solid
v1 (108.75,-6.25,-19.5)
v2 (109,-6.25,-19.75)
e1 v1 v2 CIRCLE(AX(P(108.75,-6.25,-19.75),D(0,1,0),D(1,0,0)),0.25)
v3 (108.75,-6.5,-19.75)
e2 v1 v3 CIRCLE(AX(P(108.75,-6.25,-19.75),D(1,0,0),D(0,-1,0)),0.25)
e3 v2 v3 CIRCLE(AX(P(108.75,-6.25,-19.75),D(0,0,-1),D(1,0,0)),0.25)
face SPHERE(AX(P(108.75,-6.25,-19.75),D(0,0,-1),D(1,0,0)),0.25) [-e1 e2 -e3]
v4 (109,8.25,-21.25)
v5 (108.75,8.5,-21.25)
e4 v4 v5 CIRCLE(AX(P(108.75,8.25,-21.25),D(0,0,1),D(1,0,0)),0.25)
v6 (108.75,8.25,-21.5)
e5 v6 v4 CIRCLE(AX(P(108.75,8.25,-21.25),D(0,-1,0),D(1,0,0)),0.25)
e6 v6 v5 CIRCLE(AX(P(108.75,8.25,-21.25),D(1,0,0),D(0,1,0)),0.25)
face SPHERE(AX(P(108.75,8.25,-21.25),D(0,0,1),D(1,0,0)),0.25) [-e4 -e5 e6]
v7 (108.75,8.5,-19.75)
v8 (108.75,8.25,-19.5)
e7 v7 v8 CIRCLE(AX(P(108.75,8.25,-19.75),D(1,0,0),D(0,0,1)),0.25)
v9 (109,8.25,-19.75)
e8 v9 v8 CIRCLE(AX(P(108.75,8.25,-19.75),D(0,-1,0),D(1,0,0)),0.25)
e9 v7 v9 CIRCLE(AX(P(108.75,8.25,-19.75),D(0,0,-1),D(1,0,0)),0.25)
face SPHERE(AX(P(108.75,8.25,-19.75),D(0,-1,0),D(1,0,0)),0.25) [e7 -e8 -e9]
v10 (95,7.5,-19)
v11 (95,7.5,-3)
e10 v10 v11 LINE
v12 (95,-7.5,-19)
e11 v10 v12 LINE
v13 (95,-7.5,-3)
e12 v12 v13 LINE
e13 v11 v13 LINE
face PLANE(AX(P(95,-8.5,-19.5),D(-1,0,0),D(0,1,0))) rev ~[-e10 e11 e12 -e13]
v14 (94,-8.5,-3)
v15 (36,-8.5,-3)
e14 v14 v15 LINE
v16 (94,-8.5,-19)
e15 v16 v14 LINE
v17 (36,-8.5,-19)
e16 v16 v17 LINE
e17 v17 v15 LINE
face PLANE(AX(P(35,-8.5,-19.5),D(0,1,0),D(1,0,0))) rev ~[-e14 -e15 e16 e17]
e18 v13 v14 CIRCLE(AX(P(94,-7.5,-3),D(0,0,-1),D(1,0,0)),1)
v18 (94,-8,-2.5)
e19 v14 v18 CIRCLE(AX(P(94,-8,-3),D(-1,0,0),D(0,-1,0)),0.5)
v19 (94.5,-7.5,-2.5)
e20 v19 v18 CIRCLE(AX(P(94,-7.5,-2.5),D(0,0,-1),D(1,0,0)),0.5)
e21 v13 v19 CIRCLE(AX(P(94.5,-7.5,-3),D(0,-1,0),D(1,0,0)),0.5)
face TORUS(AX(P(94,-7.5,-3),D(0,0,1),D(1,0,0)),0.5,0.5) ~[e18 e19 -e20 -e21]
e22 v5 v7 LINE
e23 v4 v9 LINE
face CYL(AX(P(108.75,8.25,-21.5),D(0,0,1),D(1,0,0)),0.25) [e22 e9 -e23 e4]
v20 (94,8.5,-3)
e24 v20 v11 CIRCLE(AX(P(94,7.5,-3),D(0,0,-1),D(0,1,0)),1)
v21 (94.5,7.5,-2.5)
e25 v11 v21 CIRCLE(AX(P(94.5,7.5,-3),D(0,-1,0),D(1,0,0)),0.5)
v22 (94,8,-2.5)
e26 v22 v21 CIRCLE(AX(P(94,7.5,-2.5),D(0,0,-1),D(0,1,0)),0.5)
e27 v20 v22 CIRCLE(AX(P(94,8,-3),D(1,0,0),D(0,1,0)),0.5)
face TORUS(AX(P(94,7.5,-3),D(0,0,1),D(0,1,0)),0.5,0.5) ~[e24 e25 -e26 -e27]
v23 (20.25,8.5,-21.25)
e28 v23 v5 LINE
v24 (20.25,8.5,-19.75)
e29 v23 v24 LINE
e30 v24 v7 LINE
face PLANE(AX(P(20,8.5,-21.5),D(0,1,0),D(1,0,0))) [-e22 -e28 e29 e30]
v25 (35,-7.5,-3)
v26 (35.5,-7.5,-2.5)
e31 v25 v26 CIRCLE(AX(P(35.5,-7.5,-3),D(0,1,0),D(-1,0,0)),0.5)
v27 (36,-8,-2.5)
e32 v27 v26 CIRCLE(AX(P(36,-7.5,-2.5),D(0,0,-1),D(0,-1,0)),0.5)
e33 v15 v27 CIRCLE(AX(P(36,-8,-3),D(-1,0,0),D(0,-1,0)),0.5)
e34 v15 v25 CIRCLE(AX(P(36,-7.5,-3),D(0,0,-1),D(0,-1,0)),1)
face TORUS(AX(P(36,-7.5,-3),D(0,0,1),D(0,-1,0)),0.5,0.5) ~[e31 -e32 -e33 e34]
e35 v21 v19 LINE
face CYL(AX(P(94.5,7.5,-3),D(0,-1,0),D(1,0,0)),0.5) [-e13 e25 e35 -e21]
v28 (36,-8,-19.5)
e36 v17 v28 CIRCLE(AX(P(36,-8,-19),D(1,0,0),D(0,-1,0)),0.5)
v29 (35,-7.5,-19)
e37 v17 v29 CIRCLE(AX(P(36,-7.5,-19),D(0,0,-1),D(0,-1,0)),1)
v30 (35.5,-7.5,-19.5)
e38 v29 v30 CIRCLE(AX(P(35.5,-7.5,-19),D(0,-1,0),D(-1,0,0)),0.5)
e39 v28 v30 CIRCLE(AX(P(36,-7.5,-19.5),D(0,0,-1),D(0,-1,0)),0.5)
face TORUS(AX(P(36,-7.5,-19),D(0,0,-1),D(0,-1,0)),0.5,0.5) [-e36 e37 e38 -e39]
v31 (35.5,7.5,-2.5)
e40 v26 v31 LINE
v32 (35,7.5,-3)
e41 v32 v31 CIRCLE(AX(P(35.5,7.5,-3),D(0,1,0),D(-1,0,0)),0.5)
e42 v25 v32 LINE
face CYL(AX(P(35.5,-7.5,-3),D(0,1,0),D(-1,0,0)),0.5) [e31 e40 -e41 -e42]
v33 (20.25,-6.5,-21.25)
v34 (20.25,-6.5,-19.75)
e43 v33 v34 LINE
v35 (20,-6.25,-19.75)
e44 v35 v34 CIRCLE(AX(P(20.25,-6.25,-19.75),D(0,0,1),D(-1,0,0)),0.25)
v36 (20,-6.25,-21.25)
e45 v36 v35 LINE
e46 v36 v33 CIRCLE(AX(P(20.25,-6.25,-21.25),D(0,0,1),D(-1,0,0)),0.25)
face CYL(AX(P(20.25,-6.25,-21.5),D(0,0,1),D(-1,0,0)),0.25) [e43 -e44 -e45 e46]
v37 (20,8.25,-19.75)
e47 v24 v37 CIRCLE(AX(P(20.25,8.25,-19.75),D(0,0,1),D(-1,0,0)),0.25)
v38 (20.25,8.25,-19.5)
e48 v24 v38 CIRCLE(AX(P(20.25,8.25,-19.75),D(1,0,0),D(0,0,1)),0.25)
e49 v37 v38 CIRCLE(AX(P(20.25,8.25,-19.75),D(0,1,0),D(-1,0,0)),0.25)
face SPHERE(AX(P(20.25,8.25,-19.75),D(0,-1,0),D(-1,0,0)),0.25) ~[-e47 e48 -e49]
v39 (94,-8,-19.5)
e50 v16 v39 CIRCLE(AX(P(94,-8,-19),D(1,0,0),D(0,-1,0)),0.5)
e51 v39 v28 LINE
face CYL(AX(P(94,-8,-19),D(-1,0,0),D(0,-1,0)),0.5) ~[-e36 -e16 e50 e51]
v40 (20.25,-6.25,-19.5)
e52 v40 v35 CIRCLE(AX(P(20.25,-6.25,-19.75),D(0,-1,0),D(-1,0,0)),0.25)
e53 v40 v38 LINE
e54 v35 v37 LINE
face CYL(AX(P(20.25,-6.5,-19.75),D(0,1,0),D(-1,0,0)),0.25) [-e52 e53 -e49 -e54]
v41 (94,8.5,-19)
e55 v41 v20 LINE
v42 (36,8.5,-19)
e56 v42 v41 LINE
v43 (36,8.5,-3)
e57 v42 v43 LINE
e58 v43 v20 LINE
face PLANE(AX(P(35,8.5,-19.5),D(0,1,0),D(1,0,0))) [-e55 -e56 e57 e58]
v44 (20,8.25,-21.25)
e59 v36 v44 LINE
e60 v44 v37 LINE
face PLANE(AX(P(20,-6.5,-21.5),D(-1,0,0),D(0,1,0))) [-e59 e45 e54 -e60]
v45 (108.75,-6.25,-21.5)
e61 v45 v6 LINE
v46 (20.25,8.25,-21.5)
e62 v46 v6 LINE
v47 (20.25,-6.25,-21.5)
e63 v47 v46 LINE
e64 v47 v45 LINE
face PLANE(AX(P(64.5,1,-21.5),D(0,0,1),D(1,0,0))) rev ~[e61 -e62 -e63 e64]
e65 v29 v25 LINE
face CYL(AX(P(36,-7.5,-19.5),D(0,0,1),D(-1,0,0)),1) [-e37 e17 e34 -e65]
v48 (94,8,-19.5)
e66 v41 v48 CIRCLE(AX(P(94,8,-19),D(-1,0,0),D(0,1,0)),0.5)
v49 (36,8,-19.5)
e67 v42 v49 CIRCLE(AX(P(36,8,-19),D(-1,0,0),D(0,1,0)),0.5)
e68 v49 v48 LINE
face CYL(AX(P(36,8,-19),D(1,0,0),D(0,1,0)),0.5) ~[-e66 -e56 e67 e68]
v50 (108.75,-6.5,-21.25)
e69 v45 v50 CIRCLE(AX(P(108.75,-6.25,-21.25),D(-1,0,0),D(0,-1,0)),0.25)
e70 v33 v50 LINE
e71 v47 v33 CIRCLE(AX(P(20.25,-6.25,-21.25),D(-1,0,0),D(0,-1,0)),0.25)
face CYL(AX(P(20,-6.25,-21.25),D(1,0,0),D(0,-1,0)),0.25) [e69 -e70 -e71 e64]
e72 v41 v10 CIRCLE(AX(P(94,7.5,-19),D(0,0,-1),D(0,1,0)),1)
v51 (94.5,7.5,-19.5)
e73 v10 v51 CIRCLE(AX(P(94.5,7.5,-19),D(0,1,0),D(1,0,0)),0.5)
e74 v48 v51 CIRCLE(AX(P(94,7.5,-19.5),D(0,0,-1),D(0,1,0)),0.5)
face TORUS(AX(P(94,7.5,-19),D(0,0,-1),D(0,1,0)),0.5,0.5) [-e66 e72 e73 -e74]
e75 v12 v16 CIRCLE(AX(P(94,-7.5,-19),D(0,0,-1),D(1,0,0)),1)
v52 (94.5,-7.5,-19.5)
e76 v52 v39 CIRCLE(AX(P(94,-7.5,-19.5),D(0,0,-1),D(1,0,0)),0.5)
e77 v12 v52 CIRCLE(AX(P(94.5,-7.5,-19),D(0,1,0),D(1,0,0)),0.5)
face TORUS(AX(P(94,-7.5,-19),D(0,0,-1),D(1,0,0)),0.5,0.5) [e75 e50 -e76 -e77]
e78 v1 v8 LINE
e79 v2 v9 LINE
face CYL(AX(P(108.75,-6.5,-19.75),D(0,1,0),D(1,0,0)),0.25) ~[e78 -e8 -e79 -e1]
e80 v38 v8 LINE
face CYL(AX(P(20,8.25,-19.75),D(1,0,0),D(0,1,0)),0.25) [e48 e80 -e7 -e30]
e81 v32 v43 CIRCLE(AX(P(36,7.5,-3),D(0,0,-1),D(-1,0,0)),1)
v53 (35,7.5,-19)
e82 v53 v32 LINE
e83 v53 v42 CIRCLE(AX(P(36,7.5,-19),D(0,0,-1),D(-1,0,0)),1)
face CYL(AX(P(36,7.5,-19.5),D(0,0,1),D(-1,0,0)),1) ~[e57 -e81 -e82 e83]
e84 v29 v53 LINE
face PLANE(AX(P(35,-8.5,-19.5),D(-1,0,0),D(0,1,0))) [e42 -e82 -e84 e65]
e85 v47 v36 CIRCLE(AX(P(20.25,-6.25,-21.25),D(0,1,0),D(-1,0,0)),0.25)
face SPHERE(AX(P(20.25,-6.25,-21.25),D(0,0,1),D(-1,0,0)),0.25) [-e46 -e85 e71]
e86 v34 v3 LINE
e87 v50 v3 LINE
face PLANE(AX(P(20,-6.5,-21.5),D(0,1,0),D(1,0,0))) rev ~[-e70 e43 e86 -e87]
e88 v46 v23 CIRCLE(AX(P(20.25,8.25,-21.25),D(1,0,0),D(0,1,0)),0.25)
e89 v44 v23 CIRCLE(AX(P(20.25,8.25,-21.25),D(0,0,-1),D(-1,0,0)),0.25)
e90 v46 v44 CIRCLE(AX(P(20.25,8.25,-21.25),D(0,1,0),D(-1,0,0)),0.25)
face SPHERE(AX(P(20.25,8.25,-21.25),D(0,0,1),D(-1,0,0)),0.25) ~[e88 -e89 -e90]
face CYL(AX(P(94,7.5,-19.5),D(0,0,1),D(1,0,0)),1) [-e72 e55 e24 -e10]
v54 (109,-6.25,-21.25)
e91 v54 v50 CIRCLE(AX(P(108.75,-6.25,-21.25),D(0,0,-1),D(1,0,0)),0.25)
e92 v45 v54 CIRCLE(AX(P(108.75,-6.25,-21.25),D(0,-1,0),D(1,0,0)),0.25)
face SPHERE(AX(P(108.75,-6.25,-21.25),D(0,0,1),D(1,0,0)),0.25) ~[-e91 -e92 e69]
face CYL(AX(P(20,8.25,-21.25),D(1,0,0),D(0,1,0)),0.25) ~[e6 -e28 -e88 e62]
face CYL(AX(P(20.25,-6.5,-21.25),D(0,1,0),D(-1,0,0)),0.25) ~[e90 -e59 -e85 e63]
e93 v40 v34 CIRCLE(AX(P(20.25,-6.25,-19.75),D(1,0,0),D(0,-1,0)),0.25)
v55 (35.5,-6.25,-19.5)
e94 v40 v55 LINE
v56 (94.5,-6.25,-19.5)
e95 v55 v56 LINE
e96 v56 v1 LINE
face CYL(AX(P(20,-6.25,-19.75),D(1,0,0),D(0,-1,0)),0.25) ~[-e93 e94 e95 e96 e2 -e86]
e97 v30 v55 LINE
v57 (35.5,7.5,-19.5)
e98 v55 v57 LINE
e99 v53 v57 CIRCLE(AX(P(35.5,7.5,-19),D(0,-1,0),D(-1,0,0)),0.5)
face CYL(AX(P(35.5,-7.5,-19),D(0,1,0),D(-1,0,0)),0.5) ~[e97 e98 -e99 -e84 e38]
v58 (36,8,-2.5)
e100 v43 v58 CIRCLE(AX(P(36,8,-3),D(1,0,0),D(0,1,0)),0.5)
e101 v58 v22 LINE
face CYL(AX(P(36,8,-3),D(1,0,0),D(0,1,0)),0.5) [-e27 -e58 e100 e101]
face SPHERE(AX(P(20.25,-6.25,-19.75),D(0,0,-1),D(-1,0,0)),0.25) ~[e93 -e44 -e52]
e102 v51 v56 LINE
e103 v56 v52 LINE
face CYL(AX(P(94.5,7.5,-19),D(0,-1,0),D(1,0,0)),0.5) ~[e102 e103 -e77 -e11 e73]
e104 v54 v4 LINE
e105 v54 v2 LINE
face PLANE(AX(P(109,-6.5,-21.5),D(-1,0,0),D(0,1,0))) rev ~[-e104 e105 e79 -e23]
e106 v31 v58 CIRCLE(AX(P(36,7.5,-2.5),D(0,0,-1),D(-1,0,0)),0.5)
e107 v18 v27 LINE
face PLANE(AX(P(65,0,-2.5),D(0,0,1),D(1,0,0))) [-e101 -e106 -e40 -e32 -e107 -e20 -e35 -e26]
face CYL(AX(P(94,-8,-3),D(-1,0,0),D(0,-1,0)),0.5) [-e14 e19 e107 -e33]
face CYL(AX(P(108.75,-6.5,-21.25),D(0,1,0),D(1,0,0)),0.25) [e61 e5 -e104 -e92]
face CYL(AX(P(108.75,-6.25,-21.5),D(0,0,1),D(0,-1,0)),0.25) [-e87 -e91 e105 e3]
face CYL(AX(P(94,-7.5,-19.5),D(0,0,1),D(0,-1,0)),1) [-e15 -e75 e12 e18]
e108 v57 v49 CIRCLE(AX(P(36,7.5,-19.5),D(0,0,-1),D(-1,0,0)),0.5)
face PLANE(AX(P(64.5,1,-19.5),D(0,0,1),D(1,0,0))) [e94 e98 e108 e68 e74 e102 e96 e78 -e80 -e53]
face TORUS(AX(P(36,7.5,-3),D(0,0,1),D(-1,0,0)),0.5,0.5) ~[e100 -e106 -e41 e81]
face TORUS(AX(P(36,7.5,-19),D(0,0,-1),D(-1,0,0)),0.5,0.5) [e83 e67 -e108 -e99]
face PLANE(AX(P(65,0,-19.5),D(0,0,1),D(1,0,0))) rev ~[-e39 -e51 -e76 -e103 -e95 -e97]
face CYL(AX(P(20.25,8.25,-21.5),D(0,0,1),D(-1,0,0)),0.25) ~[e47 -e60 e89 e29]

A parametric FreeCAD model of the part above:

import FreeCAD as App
import Part
import Sketcher
from FreeCAD import Vector
Q = App.Units.Quantity


def edges_at(feature, points):
    """Names of the edges that pass closest to the given points."""
    edges = feature.Shape.Edges
    near = lambda p: min(range(len(edges)), key=lambda i: edges[i].distToShape(Part.Vertex(*p))[0])
    return sorted({f"Edge{near(p) + 1}" for p in points})

doc = App.newDocument("Part")
body = doc.addObject("PartDesign::Body", "Body")

# Sketch on XY plane
sketch1 = body.newObject("Sketcher::SketchObject", "Sketch")
sketch1.AttachmentSupport = (doc.getObject("XY_Plane"), [""])
sketch1.MapMode = "FlatFace"
sketch1.AttachmentOffset = App.Placement(Vector(0, 0, -17), App.Rotation())
sketch1.addGeometry([
    Part.LineSegment(Vector(0, 8, 0), Vector(0, -8, 0)),
    Part.LineSegment(Vector(0, -8, 0), Vector(60, -8, 0)),
    Part.LineSegment(Vector(60, -8, 0), Vector(60, 8, 0)),
    Part.LineSegment(Vector(60, 8, 0), Vector(0, 8, 0)),
], False)
sketch1.addConstraint([
    Sketcher.Constraint("Coincident", 0, 2, 1, 1),
    Sketcher.Constraint("Coincident", 1, 2, 2, 1),
    Sketcher.Constraint("Coincident", 2, 2, 3, 1),
    Sketcher.Constraint("Coincident", 3, 2, 0, 1),
    Sketcher.Constraint("Vertical", 0),
    Sketcher.Constraint("Horizontal", 1),
    Sketcher.Constraint("Vertical", 2),
    Sketcher.Constraint("Horizontal", 3),
    Sketcher.Constraint("Symmetric", 0, 2, 3, 2, -1, 1),
    Sketcher.Constraint("DistanceX", 1, 1, 1, 2, Q("60 mm")),
    Sketcher.Constraint("DistanceY", 0, 2, 0, 1, Q("17 mm")),
])
pad1 = body.newObject("PartDesign::Pad", "Pad")
pad1.Profile = sketch1
pad1.Length = 17
doc.recompute()

fillet = body.newObject("PartDesign::Fillet", "Fillet")
fillet.Base = (pad1, edges_at(pad1, [
    (0, -8.5, -8.5),
    (0, 8.5, -8.5),
    (60, -8.5, -8.5),
    (60, 8.5, -8.5),
]))
fillet.Radius = 1
doc.recompute()

fillet2 = body.newObject("PartDesign::Fillet", "Fillet001")
fillet2.Base = (fillet, edges_at(fillet, [
    (0, 0, 0),
    (0, 0, -17),
    (30, -8.5, 0),
    (30, 8.5, 0),
    (60, 0, 0),
    (30, -8.5, -17),
    (30, 8.5, -17),
    (60, 0, -17),
]))
fillet2.Radius = 0.5
body2 = doc.addObject("PartDesign::Body", "Body001")
doc.recompute()

body.Placement = App.Placement(Vector(35, 0, -2.5), App.Rotation(Vector(0, 0, 1), 0))
boolean = body2.newObject("PartDesign::Boolean", "Boolean")
boolean.Type = "Fuse"
boolean.addObjects([body])
body3 = doc.addObject("PartDesign::Body", "Body002")

# Sketch on XY plane
sketch2 = body3.newObject("Sketcher::SketchObject", "Sketch001")
sketch2.AttachmentSupport = (doc.getObject("XY_Plane002"), [""])
sketch2.MapMode = "FlatFace"
sketch2.AttachmentOffset = App.Placement(Vector(0, 0, -2), App.Rotation())
sketch2.addGeometry([
    Part.LineSegment(Vector(0, 8, 0), Vector(0, -6, 0)),
    Part.LineSegment(Vector(0, -6, 0), Vector(89, -6, 0)),
    Part.LineSegment(Vector(89, -6, 0), Vector(89, 8, 0)),
    Part.LineSegment(Vector(89, 8, 0), Vector(0, 8, 0)),
], False)
sketch2.addConstraint([
    Sketcher.Constraint("Coincident", 0, 2, 1, 1),
    Sketcher.Constraint("Coincident", 1, 2, 2, 1),
    Sketcher.Constraint("Coincident", 2, 2, 3, 1),
    Sketcher.Constraint("Coincident", 3, 2, 0, 1),
    Sketcher.Constraint("Vertical", 0),
    Sketcher.Constraint("Horizontal", 1),
    Sketcher.Constraint("Vertical", 2),
    Sketcher.Constraint("Horizontal", 3),
    Sketcher.Constraint("PointOnObject", 0, 2, -2),
    Sketcher.Constraint("DistanceX", 1, 1, 1, 2, Q("89 mm")),
    Sketcher.Constraint("DistanceY", 0, 2, 0, 1, Q("15 mm")),
    Sketcher.Constraint("DistanceY", 0, 2, -1, 1, Q("6.5 mm")),
])
pad2 = body3.newObject("PartDesign::Pad", "Pad001")
pad2.Profile = sketch2
pad2.Length = 2
doc.recompute()

fillet3 = body3.newObject("PartDesign::Fillet", "Fillet002")
fillet3.Base = (pad2, ["Edge1"])
fillet3.UseAllEdges = True
fillet3.Radius = 0.25
body4 = doc.addObject("PartDesign::Body", "Body003")
doc.recompute()

body3.Placement = App.Placement(Vector(20, 0, -19.5), App.Rotation(Vector(0, 0, 1), 0))
boolean2 = body4.newObject("PartDesign::Boolean", "Boolean001")
boolean2.Type = "Fuse"
boolean2.addObjects([body3])
doc.recompute()

boolean3 = body4.newObject("PartDesign::Boolean", "Boolean002")
boolean3.Type = "Fuse"
boolean3.addObjects([body2])

doc.recompute()
